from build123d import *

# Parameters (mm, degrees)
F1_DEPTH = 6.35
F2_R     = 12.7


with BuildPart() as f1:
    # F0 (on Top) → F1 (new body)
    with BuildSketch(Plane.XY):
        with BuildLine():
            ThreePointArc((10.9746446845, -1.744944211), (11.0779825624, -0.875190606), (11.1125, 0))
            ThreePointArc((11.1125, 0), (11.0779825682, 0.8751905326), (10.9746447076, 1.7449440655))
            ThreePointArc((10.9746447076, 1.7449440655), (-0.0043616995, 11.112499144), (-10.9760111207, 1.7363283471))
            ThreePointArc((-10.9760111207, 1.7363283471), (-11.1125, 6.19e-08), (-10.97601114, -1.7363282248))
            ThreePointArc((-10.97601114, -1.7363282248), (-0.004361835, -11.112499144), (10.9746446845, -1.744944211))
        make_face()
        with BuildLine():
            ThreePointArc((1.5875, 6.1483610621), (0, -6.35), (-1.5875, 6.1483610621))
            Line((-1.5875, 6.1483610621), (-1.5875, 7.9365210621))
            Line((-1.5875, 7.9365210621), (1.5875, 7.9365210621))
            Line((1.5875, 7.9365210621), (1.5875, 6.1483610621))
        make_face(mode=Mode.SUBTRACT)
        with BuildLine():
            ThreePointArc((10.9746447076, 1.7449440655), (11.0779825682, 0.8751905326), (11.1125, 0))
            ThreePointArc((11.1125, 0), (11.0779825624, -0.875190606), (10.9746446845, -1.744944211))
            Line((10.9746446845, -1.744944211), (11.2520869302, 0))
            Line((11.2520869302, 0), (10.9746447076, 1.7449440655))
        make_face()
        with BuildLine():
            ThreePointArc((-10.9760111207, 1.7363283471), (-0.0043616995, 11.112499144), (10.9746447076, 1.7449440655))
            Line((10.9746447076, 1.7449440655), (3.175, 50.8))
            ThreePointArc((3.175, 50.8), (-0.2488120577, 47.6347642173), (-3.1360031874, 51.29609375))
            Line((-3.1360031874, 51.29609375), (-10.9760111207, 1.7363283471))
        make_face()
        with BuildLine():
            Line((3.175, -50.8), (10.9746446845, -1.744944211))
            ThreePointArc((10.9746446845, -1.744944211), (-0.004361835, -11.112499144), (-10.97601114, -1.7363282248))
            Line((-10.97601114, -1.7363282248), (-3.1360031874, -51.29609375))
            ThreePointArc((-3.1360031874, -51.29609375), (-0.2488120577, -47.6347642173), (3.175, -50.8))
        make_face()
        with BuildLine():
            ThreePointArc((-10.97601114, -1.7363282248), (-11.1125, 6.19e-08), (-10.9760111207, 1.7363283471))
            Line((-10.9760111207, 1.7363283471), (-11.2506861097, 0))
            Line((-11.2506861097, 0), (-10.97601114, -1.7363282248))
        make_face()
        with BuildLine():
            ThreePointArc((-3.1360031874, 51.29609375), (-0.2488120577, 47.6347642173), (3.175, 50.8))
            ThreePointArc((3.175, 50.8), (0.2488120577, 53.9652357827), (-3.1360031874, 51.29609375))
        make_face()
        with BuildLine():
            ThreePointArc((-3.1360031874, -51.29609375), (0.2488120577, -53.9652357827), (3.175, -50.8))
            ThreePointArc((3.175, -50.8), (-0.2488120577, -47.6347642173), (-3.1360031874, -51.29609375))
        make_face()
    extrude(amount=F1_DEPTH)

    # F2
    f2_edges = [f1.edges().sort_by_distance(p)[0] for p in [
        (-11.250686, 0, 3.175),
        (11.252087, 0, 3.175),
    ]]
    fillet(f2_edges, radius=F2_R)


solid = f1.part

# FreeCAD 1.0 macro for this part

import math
import FreeCAD as App
import Part
import Sketcher
Q = App.Units.Quantity


def edges_at(feature, points):
    """Names of the edges that pass closest to the given points."""
    edges = feature.Shape.Edges
    near = lambda p: min(range(len(edges)), key=lambda i: edges[i].distToShape(Part.Vertex(*p))[0])
    return sorted({f"Edge{near(p) + 1}" for p in points})

doc = App.newDocument("Part")
body = doc.addObject("PartDesign::Body", "Body")

# Sketch on XY plane
sketch1 = doc.addObject("Sketcher::SketchObject", "Sketch")
body.addObject(sketch1)
sketch1.AttachmentSupport = (doc.XY_Plane, [""])
sketch1.MapMode = "FlatFace"
sketch1.addGeometry(Part.LineSegment(App.Vector(11, -1.7, 0), App.Vector(11.3, 0, 0)), False)
sketch1.addGeometry(Part.LineSegment(App.Vector(11.3, 0, 0), App.Vector(11, 1.7, 0)), False)
sketch1.addGeometry(Part.LineSegment(App.Vector(11, 1.7, 0), App.Vector(3.2, 50.8, 0)), False)
sketch1.addGeometry(Part.ArcOfCircle(Part.Circle(App.Vector(0, 50.8, 0), App.Vector(0, 0, 1), 3.2), math.radians(0), math.radians(171)), False)
sketch1.addGeometry(Part.LineSegment(App.Vector(-3.1, 51.3, 0), App.Vector(-11, 1.7, 0)), False)
sketch1.addGeometry(Part.LineSegment(App.Vector(-11, 1.7, 0), App.Vector(-11.3, 0, 0)), False)
sketch1.addGeometry(Part.LineSegment(App.Vector(-11.3, 0, 0), App.Vector(-11, -1.7, 0)), False)
sketch1.addGeometry(Part.LineSegment(App.Vector(-11, -1.7, 0), App.Vector(-3.1, -51.3, 0)), False)
sketch1.addGeometry(Part.ArcOfCircle(Part.Circle(App.Vector(0, -50.8, 0), App.Vector(0, 0, 1), 3.2), math.radians(-171), math.radians(0)), False)
sketch1.addGeometry(Part.LineSegment(App.Vector(3.2, -50.8, 0), App.Vector(11, -1.7, 0)), False)
sketch1.addGeometry(Part.LineSegment(App.Vector(1.6, 7.9, 0), App.Vector(1.6, 6.1, 0)), False)
sketch1.addGeometry(Part.ArcOfCircle(Part.Circle(App.Vector(0, 0, 0), App.Vector(0, 0, 1), 6.3), math.radians(104), math.radians(436)), False)
sketch1.addGeometry(Part.LineSegment(App.Vector(-1.6, 6.1, 0), App.Vector(-1.6, 7.9, 0)), False)
sketch1.addGeometry(Part.LineSegment(App.Vector(-1.6, 7.9, 0), App.Vector(1.6, 7.9, 0)), False)
sketch1.addConstraint(Sketcher.Constraint("Coincident", 0, 2, 1, 1))
sketch1.addConstraint(Sketcher.Constraint("Coincident", 1, 2, 2, 1))
sketch1.addConstraint(Sketcher.Constraint("Coincident", 2, 2, 3, 1))
sketch1.addConstraint(Sketcher.Constraint("Tangent", 3, 2, 4, 1))
sketch1.addConstraint(Sketcher.Constraint("Coincident", 4, 2, 5, 1))
sketch1.addConstraint(Sketcher.Constraint("Coincident", 5, 2, 6, 1))
sketch1.addConstraint(Sketcher.Constraint("Coincident", 6, 2, 7, 1))
sketch1.addConstraint(Sketcher.Constraint("Tangent", 7, 2, 8, 1))
sketch1.addConstraint(Sketcher.Constraint("Coincident", 8, 2, 9, 1))
sketch1.addConstraint(Sketcher.Constraint("Coincident", 9, 2, 0, 1))
sketch1.addConstraint(Sketcher.Constraint("Coincident", 10, 2, 11, 2))
sketch1.addConstraint(Sketcher.Constraint("Coincident", 11, 1, 12, 1))
sketch1.addConstraint(Sketcher.Constraint("Coincident", 12, 2, 13, 1))
sketch1.addConstraint(Sketcher.Constraint("Coincident", 13, 2, 10, 1))
sketch1.addConstraint(Sketcher.Constraint("Vertical", 10))
sketch1.addConstraint(Sketcher.Constraint("Vertical", 12))
sketch1.addConstraint(Sketcher.Constraint("Horizontal", 13))
sketch1.addConstraint(Sketcher.Constraint("Coincident", 11, 3, -1, 1))
sketch1.addConstraint(Sketcher.Constraint("Equal", 3, 8))
sketch1.addConstraint(Sketcher.Constraint("Symmetric", 3, 3, 8, 3, -1, 1))
sketch1.addConstraint(Sketcher.Constraint("Symmetric", 4, 2, 6, 2, -1))
sketch1.addConstraint(Sketcher.Constraint("Symmetric", 2, 2, 8, 2, -1))
sketch1.addConstraint(Sketcher.Constraint("Symmetric", 1, 2, 9, 2, -1))
sketch1.addConstraint(Sketcher.Constraint("PointOnObject", 0, 2, -1))
sketch1.addConstraint(Sketcher.Constraint("PointOnObject", 5, 2, -1))
sketch1.addConstraint(Sketcher.Constraint("Parallel", 1, 2))
sketch1.addConstraint(Sketcher.Constraint("Parallel", 4, 5))
sketch1.addConstraint(Sketcher.Constraint("Horizontal", 3, 3, 2, 2))
sketch1.addConstraint(Sketcher.Constraint("Horizontal", 10, 2, 11, 1))
sketch1.addConstraint(Sketcher.Constraint("Radius", 11, Q("0.25 in")))
sketch1.addConstraint(Sketcher.Constraint("DistanceY", -1, 1, 3, 3, Q("2 in")))
sketch1.addConstraint(Sketcher.Constraint("Radius", 3, Q("0.125 in")))
sketch1.addConstraint(Sketcher.Constraint("DistanceX", 13, 1, 13, 2, Q("0.125 in")))
sketch1.addConstraint(Sketcher.Constraint("DistanceY", 10, 2, 10, 1, Q("0.0704 in")))
sketch1.addConstraint(Sketcher.Constraint("DistanceX", 4, 2, 0, 2, 22.228098))
sketch1.addConstraint(Sketcher.Constraint("Distance", 2, 49.671249))
sketch1.addConstraint(Sketcher.Constraint("Distance", 4, 50.176051))
sketch1.addConstraint(Sketcher.Constraint("Distance", 5, 1.75792))
pad1 = doc.addObject("PartDesign::Pad", "Pad")
body.addObject(pad1)
pad1.Profile = sketch1
pad1.Length = Q("0.25 in")
doc.recompute()

fillet = doc.addObject("PartDesign::Fillet", "Fillet")
body.addObject(fillet)
fillet.Base = (pad1, edges_at(pad1, [(-11.251, 0, 3.175), (11.252, 0, 3.175)]))
fillet.Radius = Q("0.5 in")

doc.recompute()
